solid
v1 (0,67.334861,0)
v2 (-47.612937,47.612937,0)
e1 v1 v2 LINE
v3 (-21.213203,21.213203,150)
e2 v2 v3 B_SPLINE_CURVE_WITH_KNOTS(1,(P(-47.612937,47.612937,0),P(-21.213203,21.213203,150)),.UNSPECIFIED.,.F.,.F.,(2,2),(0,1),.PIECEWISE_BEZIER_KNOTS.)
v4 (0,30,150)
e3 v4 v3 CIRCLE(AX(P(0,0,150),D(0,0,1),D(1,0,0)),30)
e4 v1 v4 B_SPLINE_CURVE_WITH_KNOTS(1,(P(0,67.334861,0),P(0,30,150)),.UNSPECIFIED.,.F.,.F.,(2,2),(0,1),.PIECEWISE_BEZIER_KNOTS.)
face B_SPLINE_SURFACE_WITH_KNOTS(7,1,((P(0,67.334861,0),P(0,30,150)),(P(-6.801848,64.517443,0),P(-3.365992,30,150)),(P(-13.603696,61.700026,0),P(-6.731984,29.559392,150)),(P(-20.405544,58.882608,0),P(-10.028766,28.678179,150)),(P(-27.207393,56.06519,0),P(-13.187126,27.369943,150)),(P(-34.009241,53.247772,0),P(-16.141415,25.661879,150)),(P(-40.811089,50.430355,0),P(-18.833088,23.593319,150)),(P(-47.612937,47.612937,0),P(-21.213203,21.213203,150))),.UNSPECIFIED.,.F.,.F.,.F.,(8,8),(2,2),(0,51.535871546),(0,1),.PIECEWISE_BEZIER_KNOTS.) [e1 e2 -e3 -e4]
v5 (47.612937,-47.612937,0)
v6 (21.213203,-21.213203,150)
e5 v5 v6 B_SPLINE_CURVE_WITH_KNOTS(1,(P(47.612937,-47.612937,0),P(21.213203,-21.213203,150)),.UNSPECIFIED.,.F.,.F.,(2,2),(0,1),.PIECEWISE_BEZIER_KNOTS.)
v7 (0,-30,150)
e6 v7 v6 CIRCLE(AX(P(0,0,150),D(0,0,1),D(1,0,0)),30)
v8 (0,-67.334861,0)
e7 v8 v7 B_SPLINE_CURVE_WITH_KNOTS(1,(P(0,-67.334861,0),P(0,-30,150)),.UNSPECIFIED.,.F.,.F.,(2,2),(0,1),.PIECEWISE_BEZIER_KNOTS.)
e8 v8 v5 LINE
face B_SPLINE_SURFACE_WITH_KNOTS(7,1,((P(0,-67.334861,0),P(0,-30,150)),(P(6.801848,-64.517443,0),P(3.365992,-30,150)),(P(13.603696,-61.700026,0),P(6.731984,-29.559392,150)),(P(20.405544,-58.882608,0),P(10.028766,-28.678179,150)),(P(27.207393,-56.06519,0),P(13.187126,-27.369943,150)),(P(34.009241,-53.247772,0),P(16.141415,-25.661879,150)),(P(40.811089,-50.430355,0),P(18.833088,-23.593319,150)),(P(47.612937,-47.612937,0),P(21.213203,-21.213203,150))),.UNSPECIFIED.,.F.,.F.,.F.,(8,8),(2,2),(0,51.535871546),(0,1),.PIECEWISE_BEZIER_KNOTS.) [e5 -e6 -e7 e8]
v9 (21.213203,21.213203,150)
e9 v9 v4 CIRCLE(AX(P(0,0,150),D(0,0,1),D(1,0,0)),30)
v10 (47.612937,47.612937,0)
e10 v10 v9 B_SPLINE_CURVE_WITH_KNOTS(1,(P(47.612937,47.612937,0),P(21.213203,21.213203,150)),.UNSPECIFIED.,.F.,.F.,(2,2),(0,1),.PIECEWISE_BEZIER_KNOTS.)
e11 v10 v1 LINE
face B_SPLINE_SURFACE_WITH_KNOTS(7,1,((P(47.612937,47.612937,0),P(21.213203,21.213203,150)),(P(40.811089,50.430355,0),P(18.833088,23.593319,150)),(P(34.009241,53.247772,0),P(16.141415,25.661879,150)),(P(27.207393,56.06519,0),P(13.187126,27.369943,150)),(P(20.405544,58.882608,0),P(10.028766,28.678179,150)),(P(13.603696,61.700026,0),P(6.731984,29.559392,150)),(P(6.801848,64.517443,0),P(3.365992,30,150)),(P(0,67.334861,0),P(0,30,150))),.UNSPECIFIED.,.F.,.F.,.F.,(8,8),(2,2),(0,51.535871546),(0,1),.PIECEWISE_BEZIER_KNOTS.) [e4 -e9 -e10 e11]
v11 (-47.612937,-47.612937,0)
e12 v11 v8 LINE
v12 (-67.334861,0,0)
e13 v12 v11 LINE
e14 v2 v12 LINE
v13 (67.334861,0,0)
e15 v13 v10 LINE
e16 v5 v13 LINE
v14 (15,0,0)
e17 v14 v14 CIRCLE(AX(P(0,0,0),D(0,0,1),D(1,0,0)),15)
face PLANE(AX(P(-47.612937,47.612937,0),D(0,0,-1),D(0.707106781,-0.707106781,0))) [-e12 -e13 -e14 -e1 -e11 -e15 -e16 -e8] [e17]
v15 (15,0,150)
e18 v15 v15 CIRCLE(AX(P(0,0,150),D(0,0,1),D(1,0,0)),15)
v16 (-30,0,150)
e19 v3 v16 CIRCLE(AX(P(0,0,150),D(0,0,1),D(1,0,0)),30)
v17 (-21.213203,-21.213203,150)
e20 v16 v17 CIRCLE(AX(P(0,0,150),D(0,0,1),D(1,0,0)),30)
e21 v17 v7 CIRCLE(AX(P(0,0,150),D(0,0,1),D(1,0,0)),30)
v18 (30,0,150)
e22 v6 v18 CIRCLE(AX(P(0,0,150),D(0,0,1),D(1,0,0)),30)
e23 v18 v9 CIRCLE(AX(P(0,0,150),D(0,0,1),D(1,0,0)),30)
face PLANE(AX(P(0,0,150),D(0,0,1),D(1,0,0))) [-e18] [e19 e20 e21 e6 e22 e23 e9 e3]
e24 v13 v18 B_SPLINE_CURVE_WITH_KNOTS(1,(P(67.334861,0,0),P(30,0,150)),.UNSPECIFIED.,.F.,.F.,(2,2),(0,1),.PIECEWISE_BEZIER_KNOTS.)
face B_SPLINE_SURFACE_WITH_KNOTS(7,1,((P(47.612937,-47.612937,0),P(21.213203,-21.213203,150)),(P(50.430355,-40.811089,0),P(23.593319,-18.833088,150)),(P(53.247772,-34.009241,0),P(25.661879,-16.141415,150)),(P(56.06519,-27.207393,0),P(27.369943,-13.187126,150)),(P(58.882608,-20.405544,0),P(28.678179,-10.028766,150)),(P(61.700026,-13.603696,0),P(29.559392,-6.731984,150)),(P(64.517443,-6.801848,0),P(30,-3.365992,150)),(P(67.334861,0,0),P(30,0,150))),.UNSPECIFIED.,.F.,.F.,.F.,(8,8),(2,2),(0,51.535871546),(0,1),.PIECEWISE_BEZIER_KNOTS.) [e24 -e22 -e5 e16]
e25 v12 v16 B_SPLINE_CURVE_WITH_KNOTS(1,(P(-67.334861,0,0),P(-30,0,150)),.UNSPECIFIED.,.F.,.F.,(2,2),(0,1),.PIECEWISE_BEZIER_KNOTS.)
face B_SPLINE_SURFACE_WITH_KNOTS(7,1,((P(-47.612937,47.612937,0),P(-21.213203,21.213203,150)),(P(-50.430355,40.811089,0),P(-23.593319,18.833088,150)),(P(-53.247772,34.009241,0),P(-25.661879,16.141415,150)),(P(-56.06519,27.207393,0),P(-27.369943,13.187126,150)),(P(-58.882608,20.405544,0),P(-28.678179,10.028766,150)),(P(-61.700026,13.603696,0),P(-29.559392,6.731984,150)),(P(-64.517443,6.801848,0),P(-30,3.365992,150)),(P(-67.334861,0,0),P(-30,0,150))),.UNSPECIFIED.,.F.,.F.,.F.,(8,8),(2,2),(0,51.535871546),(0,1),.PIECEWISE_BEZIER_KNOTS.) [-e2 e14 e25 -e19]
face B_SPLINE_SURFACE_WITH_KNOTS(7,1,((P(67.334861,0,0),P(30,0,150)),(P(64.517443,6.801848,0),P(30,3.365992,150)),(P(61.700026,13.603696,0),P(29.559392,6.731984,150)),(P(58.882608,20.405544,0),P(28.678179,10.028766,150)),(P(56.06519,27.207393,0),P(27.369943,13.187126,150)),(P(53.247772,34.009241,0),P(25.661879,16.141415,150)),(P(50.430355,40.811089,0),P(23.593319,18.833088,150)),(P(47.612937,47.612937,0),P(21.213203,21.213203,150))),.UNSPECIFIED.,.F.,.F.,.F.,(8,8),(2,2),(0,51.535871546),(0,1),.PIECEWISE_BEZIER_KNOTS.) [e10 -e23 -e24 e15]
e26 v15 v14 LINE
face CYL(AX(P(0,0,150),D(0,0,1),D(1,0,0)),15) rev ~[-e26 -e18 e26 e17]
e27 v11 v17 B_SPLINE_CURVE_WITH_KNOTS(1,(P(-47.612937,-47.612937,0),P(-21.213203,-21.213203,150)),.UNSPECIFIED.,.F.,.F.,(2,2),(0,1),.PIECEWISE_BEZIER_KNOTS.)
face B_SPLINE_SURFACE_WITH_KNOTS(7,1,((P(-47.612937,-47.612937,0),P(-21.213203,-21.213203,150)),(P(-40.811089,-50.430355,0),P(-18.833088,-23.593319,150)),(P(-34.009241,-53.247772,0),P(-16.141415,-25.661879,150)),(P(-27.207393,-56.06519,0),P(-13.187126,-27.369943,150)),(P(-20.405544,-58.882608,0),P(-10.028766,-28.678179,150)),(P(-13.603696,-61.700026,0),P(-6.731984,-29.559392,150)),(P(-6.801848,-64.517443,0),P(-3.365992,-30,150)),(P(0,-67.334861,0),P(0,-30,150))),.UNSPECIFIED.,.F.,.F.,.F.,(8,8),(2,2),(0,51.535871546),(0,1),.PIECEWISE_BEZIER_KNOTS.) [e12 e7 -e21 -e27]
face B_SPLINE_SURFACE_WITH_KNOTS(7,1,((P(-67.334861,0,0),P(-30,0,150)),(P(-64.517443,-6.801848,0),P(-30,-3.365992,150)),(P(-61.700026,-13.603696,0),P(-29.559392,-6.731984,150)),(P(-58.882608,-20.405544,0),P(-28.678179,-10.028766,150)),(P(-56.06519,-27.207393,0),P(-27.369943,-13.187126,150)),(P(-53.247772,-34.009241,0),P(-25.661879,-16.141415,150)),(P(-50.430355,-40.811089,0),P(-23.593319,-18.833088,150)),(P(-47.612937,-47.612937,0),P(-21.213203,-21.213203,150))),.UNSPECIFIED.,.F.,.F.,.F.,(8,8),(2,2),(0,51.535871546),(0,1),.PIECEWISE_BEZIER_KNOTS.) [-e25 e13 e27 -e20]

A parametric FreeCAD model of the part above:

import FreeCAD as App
import Part
import Sketcher
Q = App.Units.Quantity

doc = App.newDocument("Part")
body = doc.addObject("PartDesign::Body", "Body")

sketch1 = doc.addObject("Sketcher::SketchObject", "Sketch")
body.addObject(sketch1)
sketch1.AttachmentSupport = (doc.XY_Plane, [""])
sketch1.MapMode = "FlatFace"
sketch1.addGeometry(Part.LineSegment(App.Vector(-47.612937, 47.612937, 0), App.Vector(-67.334861, 0, 0)), False)
sketch1.addGeometry(Part.LineSegment(App.Vector(-67.334861, 0, 0), App.Vector(-47.612937, -47.612937, 0)), False)
sketch1.addGeometry(Part.LineSegment(App.Vector(-47.612937, -47.612937, 0), App.Vector(0, -67.334861, 0)), False)
sketch1.addGeometry(Part.LineSegment(App.Vector(0, -67.334861, 0), App.Vector(47.612937, -47.612937, 0)), False)
sketch1.addGeometry(Part.LineSegment(App.Vector(47.612937, -47.612937, 0), App.Vector(67.334861, 0, 0)), False)
sketch1.addGeometry(Part.LineSegment(App.Vector(67.334861, 0, 0), App.Vector(47.612937, 47.612937, 0)), False)
sketch1.addGeometry(Part.LineSegment(App.Vector(47.612937, 47.612937, 0), App.Vector(0, 67.334861, 0)), False)
sketch1.addGeometry(Part.LineSegment(App.Vector(0, 67.334861, 0), App.Vector(-47.612937, 47.612937, 0)), False)
sketch1.addConstraint(Sketcher.Constraint("Coincident", 0, 2, 1, 1))
sketch1.addConstraint(Sketcher.Constraint("Coincident", 1, 2, 2, 1))
sketch1.addConstraint(Sketcher.Constraint("Coincident", 2, 2, 3, 1))
sketch1.addConstraint(Sketcher.Constraint("Coincident", 3, 2, 4, 1))
sketch1.addConstraint(Sketcher.Constraint("Coincident", 4, 2, 5, 1))
sketch1.addConstraint(Sketcher.Constraint("Coincident", 5, 2, 6, 1))
sketch1.addConstraint(Sketcher.Constraint("Coincident", 6, 2, 7, 1))
sketch1.addConstraint(Sketcher.Constraint("Coincident", 7, 2, 0, 1))
sketch1.addConstraint(Sketcher.Constraint("Symmetric", 0, 2, 4, 2, -1, 1))
sketch1.addConstraint(Sketcher.Constraint("Symmetric", 1, 2, 5, 2, -1, 1))
sketch1.addConstraint(Sketcher.Constraint("Symmetric", 2, 2, 6, 2, -1, 1))
sketch1.addConstraint(Sketcher.Constraint("Symmetric", 3, 2, 7, 2, -1, 1))
sketch1.addConstraint(Sketcher.Constraint("Symmetric", 1, 2, 3, 2, -2))
sketch1.addConstraint(Sketcher.Constraint("PointOnObject", 0, 2, -1))
sketch1.addConstraint(Sketcher.Constraint("PointOnObject", 2, 2, -2))
sketch1.addConstraint(Sketcher.Constraint("Perpendicular", 0, 2))
sketch1.addConstraint(Sketcher.Constraint("Equal", 1, 2))
sketch1.addConstraint(Sketcher.Constraint("Angle", 0, Q("-112.5 deg")))
sketch1.addConstraint(Sketcher.Constraint("DistanceX", 0, 2, 3, 2, Q("114.947798 mm")))

sketch2 = doc.addObject("Sketcher::SketchObject", "Sketch001")
body.addObject(sketch2)
sketch2.AttachmentSupport = (doc.XY_Plane, [""])
sketch2.MapMode = "FlatFace"
sketch2.AttachmentOffset = App.Placement(App.Vector(0, 0, 150), App.Rotation())
sketch2.addGeometry(Part.Circle(App.Vector(0, 0, 0), App.Vector(0, 0, 1), 30), False)
sketch2.addConstraint(Sketcher.Constraint("Coincident", 0, 3, -1, 1))
sketch2.addConstraint(Sketcher.Constraint("Diameter", 0, Q("60 mm")))

additiveloft = doc.addObject("PartDesign::AdditiveLoft", "AdditiveLoft")
body.addObject(additiveloft)
additiveloft.Profile = sketch1
additiveloft.Sections = [sketch2]

sketch3 = doc.addObject("Sketcher::SketchObject", "Sketch002")
body.addObject(sketch3)
sketch3.AttachmentSupport = (doc.XY_Plane, [""])
sketch3.MapMode = "FlatFace"
sketch3.AttachmentOffset = App.Placement(App.Vector(0, 0, 150), App.Rotation())
sketch3.addGeometry(Part.Circle(App.Vector(0, 0, 0), App.Vector(0, 0, 1), 15), False)
sketch3.addConstraint(Sketcher.Constraint("Coincident", 0, 3, -1, 1))
sketch3.addConstraint(Sketcher.Constraint("Diameter", 0, Q("30 mm")))
pocket1 = doc.addObject("PartDesign::Pocket", "Pocket")
body.addObject(pocket1)
pocket1.Profile = sketch3
pocket1.Length = 226.1

doc.recompute()
